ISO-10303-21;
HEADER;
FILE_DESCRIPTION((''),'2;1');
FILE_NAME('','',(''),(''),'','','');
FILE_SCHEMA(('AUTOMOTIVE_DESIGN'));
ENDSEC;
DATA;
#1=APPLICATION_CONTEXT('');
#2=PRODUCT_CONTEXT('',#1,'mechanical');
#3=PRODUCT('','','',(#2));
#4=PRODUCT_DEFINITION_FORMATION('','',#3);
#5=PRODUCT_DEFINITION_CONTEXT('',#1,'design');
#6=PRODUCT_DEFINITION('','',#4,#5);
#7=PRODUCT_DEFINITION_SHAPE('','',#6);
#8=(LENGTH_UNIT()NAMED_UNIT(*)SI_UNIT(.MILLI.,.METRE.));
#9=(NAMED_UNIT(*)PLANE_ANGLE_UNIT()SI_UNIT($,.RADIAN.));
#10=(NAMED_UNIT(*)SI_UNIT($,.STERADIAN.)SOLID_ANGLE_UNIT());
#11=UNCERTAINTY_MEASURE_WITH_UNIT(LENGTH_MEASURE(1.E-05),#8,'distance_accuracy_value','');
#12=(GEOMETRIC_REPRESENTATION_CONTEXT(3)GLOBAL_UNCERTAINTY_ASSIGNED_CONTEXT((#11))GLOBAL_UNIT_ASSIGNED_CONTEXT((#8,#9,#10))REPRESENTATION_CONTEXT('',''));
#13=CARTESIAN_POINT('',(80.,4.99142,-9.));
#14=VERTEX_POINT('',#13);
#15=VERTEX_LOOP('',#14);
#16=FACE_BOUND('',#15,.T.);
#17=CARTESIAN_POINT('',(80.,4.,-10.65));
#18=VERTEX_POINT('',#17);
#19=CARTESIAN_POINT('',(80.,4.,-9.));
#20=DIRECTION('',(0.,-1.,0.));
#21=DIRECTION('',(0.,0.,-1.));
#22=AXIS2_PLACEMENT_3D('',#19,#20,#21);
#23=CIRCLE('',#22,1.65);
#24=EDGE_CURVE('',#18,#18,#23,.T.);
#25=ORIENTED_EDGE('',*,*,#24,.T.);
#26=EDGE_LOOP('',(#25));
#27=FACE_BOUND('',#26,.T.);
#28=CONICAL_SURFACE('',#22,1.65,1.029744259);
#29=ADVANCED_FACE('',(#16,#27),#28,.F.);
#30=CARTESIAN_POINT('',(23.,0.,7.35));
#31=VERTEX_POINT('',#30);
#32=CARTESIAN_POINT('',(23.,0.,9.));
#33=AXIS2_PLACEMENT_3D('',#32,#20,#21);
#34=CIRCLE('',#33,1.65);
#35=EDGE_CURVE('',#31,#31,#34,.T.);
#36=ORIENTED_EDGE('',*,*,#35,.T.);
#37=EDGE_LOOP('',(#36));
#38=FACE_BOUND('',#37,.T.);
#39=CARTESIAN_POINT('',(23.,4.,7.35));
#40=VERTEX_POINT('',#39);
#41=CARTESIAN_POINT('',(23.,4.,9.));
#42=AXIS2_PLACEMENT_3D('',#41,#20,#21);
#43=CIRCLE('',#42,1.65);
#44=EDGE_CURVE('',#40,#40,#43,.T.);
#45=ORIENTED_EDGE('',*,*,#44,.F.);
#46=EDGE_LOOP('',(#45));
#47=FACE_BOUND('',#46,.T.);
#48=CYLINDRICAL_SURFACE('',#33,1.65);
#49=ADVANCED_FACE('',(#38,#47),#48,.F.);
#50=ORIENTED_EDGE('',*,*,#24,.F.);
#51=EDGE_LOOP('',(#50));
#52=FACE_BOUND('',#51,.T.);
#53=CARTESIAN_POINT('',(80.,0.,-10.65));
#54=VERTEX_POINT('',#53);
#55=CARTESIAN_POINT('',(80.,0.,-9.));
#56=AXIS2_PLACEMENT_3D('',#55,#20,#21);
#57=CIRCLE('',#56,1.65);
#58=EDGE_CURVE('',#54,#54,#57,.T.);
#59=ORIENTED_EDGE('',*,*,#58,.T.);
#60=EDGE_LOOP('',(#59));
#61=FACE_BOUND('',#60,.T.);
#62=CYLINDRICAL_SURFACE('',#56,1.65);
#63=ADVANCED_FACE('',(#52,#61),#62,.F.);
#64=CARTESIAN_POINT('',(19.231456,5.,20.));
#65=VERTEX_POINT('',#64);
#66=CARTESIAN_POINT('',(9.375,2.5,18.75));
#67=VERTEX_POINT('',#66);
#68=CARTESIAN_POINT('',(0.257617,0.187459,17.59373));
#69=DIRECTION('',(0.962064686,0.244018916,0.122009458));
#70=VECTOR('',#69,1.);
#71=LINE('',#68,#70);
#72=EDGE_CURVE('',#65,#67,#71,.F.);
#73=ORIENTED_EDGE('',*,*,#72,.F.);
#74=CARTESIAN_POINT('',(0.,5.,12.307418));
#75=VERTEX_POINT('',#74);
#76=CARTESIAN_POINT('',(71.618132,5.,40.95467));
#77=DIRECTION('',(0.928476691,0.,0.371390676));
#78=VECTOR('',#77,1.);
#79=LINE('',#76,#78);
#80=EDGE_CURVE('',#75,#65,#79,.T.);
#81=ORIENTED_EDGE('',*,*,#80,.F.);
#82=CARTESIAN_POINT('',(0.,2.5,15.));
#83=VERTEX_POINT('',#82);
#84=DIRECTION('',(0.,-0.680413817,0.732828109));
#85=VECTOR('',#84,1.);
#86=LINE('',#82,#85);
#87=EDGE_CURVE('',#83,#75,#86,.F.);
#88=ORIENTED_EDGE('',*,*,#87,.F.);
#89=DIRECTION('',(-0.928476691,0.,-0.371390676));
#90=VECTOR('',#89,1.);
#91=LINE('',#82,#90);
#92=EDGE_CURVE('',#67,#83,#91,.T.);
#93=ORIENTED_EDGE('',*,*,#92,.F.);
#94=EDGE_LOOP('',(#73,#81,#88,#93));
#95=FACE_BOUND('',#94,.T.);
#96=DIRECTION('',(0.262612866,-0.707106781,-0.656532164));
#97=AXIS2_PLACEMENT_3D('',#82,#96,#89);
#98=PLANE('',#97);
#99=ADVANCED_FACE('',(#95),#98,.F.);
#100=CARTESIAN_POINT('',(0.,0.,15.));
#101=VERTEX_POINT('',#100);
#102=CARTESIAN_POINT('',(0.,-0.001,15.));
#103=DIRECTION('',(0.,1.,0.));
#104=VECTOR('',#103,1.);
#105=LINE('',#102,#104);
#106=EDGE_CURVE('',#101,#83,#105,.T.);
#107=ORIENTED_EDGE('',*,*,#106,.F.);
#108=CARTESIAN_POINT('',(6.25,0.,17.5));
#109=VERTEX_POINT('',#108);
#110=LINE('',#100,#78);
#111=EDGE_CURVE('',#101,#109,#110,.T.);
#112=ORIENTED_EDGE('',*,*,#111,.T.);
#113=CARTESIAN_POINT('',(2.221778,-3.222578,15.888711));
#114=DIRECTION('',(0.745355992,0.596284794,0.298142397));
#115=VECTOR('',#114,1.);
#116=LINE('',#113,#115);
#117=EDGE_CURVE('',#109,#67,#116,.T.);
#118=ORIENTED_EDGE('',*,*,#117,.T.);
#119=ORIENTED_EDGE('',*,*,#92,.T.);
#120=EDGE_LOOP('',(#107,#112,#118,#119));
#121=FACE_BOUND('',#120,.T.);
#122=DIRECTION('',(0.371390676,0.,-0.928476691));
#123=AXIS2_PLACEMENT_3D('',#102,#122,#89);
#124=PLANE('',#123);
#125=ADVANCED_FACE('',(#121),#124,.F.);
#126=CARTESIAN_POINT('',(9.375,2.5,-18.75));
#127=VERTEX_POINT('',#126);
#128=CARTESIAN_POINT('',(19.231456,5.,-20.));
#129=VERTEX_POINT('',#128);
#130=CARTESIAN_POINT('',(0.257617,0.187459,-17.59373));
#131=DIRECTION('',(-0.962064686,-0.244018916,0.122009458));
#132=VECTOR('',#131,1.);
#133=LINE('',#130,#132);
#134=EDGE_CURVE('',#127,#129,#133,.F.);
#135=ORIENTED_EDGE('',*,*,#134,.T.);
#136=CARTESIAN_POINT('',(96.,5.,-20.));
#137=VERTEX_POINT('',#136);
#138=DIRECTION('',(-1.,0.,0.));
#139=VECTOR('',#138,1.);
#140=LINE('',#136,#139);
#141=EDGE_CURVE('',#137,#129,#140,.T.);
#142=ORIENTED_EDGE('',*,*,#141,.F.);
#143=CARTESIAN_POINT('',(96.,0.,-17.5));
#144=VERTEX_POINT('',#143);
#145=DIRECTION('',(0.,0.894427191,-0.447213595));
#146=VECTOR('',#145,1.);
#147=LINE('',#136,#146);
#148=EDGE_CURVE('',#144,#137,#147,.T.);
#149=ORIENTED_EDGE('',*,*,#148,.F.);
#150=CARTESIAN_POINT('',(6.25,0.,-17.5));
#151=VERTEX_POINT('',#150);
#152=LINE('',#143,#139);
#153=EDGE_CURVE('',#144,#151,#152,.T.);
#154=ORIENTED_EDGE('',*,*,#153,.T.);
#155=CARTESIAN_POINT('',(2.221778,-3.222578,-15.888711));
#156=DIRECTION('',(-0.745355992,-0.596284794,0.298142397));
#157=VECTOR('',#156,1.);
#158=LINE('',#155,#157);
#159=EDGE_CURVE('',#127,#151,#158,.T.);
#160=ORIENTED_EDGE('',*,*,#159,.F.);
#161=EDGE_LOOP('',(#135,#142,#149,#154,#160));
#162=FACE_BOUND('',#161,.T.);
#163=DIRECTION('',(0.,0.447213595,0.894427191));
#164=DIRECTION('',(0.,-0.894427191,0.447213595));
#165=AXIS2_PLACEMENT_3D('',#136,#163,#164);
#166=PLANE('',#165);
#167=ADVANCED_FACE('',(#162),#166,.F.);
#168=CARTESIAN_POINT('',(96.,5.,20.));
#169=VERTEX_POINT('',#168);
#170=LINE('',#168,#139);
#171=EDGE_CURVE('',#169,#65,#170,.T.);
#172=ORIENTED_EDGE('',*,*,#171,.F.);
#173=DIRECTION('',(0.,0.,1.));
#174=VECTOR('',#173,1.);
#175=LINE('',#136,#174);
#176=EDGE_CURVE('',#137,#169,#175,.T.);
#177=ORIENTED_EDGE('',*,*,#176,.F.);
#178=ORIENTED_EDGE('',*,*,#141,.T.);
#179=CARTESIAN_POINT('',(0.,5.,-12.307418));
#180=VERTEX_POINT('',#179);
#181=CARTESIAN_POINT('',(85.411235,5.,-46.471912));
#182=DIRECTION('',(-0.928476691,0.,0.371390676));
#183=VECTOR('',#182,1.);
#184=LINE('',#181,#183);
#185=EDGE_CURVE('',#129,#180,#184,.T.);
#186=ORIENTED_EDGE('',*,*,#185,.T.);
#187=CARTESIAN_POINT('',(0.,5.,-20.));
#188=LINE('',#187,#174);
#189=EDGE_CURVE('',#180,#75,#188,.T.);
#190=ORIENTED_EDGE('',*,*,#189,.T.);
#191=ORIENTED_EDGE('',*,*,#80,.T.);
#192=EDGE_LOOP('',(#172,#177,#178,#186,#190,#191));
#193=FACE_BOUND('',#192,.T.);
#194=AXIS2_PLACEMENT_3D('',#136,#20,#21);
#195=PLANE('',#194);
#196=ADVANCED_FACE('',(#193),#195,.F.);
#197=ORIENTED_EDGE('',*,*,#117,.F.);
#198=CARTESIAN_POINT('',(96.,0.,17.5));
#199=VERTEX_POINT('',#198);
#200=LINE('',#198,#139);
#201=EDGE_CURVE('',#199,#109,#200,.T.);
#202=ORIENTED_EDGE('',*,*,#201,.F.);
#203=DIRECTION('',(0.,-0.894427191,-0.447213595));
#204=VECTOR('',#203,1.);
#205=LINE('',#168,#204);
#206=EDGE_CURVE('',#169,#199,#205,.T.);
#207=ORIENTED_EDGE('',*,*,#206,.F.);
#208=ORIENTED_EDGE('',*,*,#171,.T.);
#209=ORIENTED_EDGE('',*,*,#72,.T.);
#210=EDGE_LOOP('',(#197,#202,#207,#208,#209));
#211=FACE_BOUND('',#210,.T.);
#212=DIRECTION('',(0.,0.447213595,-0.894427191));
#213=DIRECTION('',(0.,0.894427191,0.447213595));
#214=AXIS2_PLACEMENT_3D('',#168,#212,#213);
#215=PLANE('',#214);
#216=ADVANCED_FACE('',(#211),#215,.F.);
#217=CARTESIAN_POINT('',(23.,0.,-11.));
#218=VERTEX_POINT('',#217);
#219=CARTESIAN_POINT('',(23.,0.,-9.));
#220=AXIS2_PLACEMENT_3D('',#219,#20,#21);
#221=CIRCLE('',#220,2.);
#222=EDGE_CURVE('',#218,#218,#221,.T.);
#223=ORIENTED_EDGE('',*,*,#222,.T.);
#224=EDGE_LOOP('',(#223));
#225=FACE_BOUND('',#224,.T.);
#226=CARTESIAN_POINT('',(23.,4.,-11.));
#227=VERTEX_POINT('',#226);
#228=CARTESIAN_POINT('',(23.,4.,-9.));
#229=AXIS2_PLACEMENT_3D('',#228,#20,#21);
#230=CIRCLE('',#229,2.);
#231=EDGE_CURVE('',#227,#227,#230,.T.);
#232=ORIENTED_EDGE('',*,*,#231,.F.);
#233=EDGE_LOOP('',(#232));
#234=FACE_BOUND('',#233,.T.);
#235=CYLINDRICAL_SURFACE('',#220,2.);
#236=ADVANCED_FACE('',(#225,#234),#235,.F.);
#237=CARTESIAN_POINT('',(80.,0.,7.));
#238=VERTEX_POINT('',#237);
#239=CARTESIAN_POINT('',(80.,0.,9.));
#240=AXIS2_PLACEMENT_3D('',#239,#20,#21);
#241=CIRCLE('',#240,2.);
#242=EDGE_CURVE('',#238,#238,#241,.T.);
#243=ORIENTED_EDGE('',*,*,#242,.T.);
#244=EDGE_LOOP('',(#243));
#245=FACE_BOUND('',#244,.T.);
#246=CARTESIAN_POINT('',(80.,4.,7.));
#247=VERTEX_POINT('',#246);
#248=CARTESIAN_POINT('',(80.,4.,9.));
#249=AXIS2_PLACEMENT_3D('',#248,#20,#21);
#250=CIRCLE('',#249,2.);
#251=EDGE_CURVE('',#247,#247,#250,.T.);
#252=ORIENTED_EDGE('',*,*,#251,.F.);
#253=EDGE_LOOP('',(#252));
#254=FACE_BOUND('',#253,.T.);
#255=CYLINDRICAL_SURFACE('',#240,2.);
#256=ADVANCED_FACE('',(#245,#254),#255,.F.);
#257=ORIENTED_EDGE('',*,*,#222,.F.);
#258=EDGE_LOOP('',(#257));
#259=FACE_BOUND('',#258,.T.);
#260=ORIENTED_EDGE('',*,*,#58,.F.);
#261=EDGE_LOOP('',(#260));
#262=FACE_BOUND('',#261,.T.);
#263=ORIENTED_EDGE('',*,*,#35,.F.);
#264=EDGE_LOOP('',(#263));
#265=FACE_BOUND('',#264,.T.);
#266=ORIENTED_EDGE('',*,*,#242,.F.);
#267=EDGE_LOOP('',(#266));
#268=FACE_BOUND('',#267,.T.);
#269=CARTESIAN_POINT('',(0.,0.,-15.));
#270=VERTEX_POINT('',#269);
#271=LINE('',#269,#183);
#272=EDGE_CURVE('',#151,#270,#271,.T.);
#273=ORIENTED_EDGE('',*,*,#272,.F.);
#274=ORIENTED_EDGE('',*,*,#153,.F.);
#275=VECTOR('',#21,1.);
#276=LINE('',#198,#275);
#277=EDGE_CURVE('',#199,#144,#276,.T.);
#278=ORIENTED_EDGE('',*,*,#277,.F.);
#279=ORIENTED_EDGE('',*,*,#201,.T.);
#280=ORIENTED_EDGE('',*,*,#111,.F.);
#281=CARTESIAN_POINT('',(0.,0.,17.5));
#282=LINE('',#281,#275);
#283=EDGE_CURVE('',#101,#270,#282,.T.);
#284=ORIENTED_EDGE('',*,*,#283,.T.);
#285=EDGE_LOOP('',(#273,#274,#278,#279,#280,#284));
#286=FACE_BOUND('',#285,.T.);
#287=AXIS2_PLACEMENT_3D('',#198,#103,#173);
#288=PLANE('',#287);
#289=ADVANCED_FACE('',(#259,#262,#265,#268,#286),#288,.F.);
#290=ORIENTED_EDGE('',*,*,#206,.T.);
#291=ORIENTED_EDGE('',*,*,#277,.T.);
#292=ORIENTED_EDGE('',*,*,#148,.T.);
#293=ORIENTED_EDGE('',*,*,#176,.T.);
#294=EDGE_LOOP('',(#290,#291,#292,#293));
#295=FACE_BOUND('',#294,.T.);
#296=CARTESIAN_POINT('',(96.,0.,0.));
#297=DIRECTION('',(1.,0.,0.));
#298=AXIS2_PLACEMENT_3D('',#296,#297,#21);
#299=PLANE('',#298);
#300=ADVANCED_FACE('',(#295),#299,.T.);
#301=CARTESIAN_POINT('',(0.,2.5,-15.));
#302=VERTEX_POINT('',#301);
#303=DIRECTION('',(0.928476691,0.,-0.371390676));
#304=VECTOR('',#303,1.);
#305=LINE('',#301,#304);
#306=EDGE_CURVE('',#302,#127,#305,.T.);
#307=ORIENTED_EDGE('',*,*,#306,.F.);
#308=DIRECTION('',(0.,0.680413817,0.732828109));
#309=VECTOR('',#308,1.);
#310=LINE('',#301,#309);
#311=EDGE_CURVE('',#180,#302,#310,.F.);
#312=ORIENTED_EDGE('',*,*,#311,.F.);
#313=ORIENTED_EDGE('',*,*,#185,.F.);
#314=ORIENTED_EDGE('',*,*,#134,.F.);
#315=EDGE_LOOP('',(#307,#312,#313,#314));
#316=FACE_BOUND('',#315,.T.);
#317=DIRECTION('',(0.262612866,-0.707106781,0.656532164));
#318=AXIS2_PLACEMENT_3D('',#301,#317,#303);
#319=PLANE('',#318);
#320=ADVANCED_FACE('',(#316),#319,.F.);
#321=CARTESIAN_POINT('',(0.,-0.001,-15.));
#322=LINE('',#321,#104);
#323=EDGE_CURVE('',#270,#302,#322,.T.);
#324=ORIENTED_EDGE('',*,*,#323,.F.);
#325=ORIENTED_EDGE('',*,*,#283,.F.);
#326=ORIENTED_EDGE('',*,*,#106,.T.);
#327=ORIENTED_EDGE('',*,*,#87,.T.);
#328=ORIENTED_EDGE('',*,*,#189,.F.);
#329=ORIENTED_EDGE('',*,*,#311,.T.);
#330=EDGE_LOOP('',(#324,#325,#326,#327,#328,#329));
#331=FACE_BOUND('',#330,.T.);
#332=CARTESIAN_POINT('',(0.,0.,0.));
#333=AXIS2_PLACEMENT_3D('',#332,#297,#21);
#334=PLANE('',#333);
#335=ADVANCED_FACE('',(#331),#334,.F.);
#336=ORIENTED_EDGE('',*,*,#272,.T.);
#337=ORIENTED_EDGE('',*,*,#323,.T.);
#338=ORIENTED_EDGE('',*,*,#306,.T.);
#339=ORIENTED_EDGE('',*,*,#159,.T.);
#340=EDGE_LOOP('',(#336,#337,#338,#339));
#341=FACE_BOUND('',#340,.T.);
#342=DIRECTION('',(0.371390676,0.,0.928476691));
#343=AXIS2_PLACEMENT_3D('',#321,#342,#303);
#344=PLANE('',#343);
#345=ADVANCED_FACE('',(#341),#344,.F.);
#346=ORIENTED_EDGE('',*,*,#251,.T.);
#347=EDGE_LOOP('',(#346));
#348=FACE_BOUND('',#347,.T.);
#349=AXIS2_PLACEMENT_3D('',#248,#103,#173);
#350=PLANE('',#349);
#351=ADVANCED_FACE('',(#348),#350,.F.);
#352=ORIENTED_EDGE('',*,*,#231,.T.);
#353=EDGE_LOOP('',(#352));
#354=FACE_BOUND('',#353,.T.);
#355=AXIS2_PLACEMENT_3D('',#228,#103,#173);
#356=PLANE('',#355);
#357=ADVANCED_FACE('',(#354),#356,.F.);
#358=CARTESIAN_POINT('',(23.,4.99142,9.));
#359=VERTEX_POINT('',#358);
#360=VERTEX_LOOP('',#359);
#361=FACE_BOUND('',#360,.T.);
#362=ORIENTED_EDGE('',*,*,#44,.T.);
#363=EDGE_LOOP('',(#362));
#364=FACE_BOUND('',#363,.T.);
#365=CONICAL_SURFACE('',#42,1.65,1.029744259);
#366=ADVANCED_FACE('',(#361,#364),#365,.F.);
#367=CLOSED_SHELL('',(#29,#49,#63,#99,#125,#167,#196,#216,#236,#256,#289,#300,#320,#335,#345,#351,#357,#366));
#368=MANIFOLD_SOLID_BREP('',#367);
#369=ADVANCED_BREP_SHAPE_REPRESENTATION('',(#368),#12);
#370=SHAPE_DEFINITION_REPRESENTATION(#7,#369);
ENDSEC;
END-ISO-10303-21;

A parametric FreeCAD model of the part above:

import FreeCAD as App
import Part
import Sketcher
from FreeCAD import Vector
Q = App.Units.Quantity


def edges_at(feature, points):
    """Names of the edges that pass closest to the given points."""
    edges = feature.Shape.Edges
    near = lambda p: min(range(len(edges)), key=lambda i: edges[i].distToShape(Part.Vertex(*p))[0])
    return sorted({f"Edge{near(p) + 1}" for p in points})


def add_polygon(sketch, points):
    """Adds a closed chain of lines whose ends are joined by coincident constraints."""
    first, n = sketch.GeometryCount, len(points)
    for a, b in zip(points, points[1:] + points[:1]):
        sketch.addGeometry(Part.LineSegment(App.Vector(*a, 0), App.Vector(*b, 0)), False)
    for i in range(n):
        sketch.addConstraint(Sketcher.Constraint("Coincident", first + i, 2, first + (i + 1) % n, 1))

doc = App.newDocument("Part")
body = doc.addObject("PartDesign::Body", "Body")

# Sketch on YZ plane
sketch1 = body.newObject("Sketcher::SketchObject", "Sketch")
sketch1.AttachmentSupport = (doc.getObject("YZ_Plane"), [""])
sketch1.MapMode = "FlatFace"
add_polygon(sketch1, [(5, 20), (0, 18), (0, -18), (5, -20)])  # lines 0-3
sketch1.addConstraint(Sketcher.Constraint("Vertical", 1))
sketch1.addConstraint(Sketcher.Constraint("Vertical", 3))
sketch1.addConstraint(Sketcher.Constraint("Symmetric", 0, 2, 1, 2, -1, 1))
sketch1.addConstraint(Sketcher.Constraint("Equal", 0, 2))
sketch1.addConstraint(Sketcher.Constraint("DistanceY", 1, 2, 1, 1, Q("35 mm")))
sketch1.addConstraint(Sketcher.Constraint("DistanceY", 3, 1, 3, 2, Q("40 mm")))
sketch1.addConstraint(Sketcher.Constraint("DistanceX", -1, 1, 2, 2, Q("5 mm")))
pad1 = body.newObject("PartDesign::Pad", "Pad")
pad1.Profile = sketch1
pad1.Length = 96

# Sketch on XZ plane
sketch2 = body.newObject("Sketcher::SketchObject", "Sketch001")
sketch2.AttachmentSupport = (doc.getObject("XZ_Plane"), [""])
sketch2.MapMode = "FlatFace"
sketch2.AttachmentOffset = App.Placement(Vector(0, 0, -5), App.Rotation())
add_polygon(sketch2, [(0, -15), (12, -20), (0, -20)])  # lines 0-2
sketch2.addConstraint(Sketcher.Constraint("Horizontal", 1))
sketch2.addConstraint(Sketcher.Constraint("Vertical", 2))
sketch2.addConstraint(Sketcher.Constraint("PointOnObject", 1, 2, -2))
sketch2.addConstraint(Sketcher.Constraint("DistanceY", 2, 1, 2, 2, Q("5 mm")))
sketch2.addConstraint(Sketcher.Constraint("DistanceX", 1, 2, 1, 1, Q("12.5 mm")))
sketch2.addConstraint(Sketcher.Constraint("DistanceY", 0, 2, -1, 1, Q("20 mm")))
pocket1 = body.newObject("PartDesign::Pocket", "Pocket")
pocket1.Profile = sketch2
pocket1.Length = 5
pocket1.Reversed = True

# Sketch on XZ plane
sketch3 = body.newObject("Sketcher::SketchObject", "Sketch002")
sketch3.AttachmentSupport = (doc.getObject("XZ_Plane"), [""])
sketch3.MapMode = "FlatFace"
sketch3.AttachmentOffset = App.Placement(Vector(0, 0, -5), App.Rotation())
add_polygon(sketch3, [(0, 15), (0, 20), (12, 20)])  # lines 0-2
sketch3.addConstraint(Sketcher.Constraint("Vertical", 0))
sketch3.addConstraint(Sketcher.Constraint("Horizontal", 1))
sketch3.addConstraint(Sketcher.Constraint("PointOnObject", 0, 2, -2))
sketch3.addConstraint(Sketcher.Constraint("DistanceY", 0, 1, 0, 2, Q("5 mm")))
sketch3.addConstraint(Sketcher.Constraint("DistanceX", 1, 1, 1, 2, Q("12.5 mm")))
sketch3.addConstraint(Sketcher.Constraint("DistanceY", -1, 1, 0, 2, Q("20 mm")))
pocket2 = body.newObject("PartDesign::Pocket", "Pocket001")
pocket2.Profile = sketch3
pocket2.Length = 5
pocket2.Reversed = True
doc.recompute()

chamfer = body.newObject("PartDesign::Chamfer", "Chamfer")
chamfer.Base = (pocket2, edges_at(pocket2, [(6.25, 5, -17.5), (6.25, 5, 17.5)]))
chamfer.Size = 2.5

# Sketch on XZ plane
sketch4 = body.newObject("Sketcher::SketchObject", "Sketch003")
sketch4.AttachmentSupport = (doc.getObject("XZ_Plane"), [""])
sketch4.MapMode = "FlatFace"
sketch4.addGeometry(Part.Circle(Vector(23, -9, 0), Vector(0, 0, 1), 2), False)
sketch4.addGeometry(Part.Circle(Vector(80, 9, 0), Vector(0, 0, 1), 2), False)
sketch4.addConstraint(Sketcher.Constraint("Equal", 0, 1))
sketch4.addConstraint(Sketcher.Constraint("Diameter", 0, Q("4 mm")))
sketch4.addConstraint(Sketcher.Constraint("DistanceX", -1, 1, 0, 3, Q("23 mm")))
sketch4.addConstraint(Sketcher.Constraint("DistanceY", 0, 3, -1, 1, Q("9 mm")))
sketch4.addConstraint(Sketcher.Constraint("DistanceX", -1, 1, 1, 3, Q("80 mm")))
sketch4.addConstraint(Sketcher.Constraint("DistanceY", -1, 1, 1, 3, Q("9 mm")))
doc.recompute()
hole = body.newObject("PartDesign::Hole", "Hole")
hole.Profile = sketch4
hole.ThreadType = "None"
hole.Diameter = 4
hole.DepthType = "Dimension"
hole.Depth = 4
hole.DrillPoint = "Flat"

# Sketch on XZ plane
sketch5 = body.newObject("Sketcher::SketchObject", "Sketch004")
sketch5.AttachmentSupport = (doc.getObject("XZ_Plane"), [""])
sketch5.MapMode = "FlatFace"
sketch5.addGeometry(Part.Circle(Vector(23, 9, 0), Vector(0, 0, 1), 1.6), False)
sketch5.addGeometry(Part.Circle(Vector(80, -9, 0), Vector(0, 0, 1), 1.6), False)
sketch5.addConstraint(Sketcher.Constraint("Equal", 0, 1))
sketch5.addConstraint(Sketcher.Constraint("Diameter", 0, Q("3.3 mm")))
sketch5.addConstraint(Sketcher.Constraint("DistanceX", -1, 1, 0, 3, Q("23 mm")))
sketch5.addConstraint(Sketcher.Constraint("DistanceY", -1, 1, 0, 3, Q("9 mm")))
sketch5.addConstraint(Sketcher.Constraint("DistanceX", -1, 1, 1, 3, Q("80 mm")))
sketch5.addConstraint(Sketcher.Constraint("DistanceY", 1, 3, -1, 1, Q("9 mm")))
doc.recompute()
hole2 = body.newObject("PartDesign::Hole", "Hole001")
hole2.Profile = sketch5
hole2.ThreadType = "None"
hole2.Diameter = 3.3
hole2.DepthType = "Dimension"
hole2.Depth = 4
hole2.DrillPoint = "Angled"
hole2.DrillPointAngle = 118

doc.recompute()
